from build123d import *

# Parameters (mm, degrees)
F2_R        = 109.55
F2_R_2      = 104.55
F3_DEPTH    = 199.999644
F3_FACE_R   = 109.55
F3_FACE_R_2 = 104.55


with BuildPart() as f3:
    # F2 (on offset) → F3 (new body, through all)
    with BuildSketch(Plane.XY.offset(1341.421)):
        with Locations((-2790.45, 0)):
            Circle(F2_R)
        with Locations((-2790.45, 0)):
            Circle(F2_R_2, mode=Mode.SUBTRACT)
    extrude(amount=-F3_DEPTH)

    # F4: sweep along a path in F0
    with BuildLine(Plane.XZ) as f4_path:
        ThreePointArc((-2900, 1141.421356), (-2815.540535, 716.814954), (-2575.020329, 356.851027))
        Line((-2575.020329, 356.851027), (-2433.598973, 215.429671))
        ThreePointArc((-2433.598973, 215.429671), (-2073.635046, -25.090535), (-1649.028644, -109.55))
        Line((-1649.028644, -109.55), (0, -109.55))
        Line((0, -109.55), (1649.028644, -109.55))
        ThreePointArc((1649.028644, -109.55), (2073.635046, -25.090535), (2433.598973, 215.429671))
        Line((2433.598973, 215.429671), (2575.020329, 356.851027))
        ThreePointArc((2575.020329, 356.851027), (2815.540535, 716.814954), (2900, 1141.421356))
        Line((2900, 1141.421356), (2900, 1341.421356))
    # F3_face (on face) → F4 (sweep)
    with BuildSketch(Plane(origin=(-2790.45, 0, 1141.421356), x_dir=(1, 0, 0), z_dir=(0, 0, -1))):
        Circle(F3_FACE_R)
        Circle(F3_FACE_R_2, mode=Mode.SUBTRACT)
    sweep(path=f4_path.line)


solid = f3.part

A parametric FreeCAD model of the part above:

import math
import FreeCAD as App
import Part
import Sketcher

V = App.Vector
Q = App.Units.Quantity

doc = App.newDocument("Part")
body = doc.addObject("PartDesign::Body", "Body")

sketch1 = doc.addObject("Sketcher::SketchObject", "Sketch")
body.addObject(sketch1)
sketch1.AttachmentSupport = (doc.XY_Plane, [""])
sketch1.MapMode = "FlatFace"
sketch1.AttachmentOffset = App.Placement(V(0, 0, 1341.421), App.Rotation())
sketch1.addGeometry(Part.Circle(V(-2790.45, 0, 0), V(0, 0, 1), 109.55), False)
sketch1.addGeometry(Part.Circle(V(-2790.45, 0, 0), V(0, 0, 1), 104.55), False)
sketch1.addConstraint(Sketcher.Constraint("Coincident", 1, 3, 0, 3))
sketch1.addConstraint(Sketcher.Constraint("PointOnObject", 0, 3, -1))
sketch1.addConstraint(Sketcher.Constraint("Diameter", 0, 219.1))
sketch1.addConstraint(Sketcher.Constraint("Diameter", 1, 209.1))
sketch1.addConstraint(Sketcher.Constraint("DistanceX", 0, 3, -1, 1, 2790.45))
pad1 = doc.addObject("PartDesign::Pad", "Pad")
body.addObject(pad1)
pad1.Profile = sketch1
pad1.Length = 199.999644
pad1.Reversed = True

sketch2 = doc.addObject("Sketcher::SketchObject", "Sketch001")
body.addObject(sketch2)
sketch2.AttachmentSupport = (doc.XY_Plane, [""])
sketch2.MapMode = "FlatFace"
sketch2.AttachmentOffset = App.Placement(V(0, 0, 1141.421356), App.Rotation())
sketch2.addGeometry(Part.Circle(V(-2790.45, 0, 0), V(0, 0, 1), 109.55), False)
sketch2.addGeometry(Part.Circle(V(-2790.45, 0, 0), V(0, 0, 1), 104.55), False)
sketch2.addConstraint(Sketcher.Constraint("Coincident", 1, 3, 0, 3))
sketch2.addConstraint(Sketcher.Constraint("PointOnObject", 0, 3, -1))
sketch2.addConstraint(Sketcher.Constraint("Diameter", 0, 219.1))
sketch2.addConstraint(Sketcher.Constraint("Diameter", 1, 209.1))
sketch2.addConstraint(Sketcher.Constraint("DistanceX", 0, 3, -1, 1, 2790.45))

sketch3 = doc.addObject("Sketcher::SketchObject", "Sketch002")
body.addObject(sketch3)
sketch3.AttachmentSupport = (doc.XZ_Plane, [""])
sketch3.MapMode = "FlatFace"
sketch3.addGeometry(Part.ArcOfCircle(Part.Circle(V(-1790.449996, 1141.421358, 0), V(0, 0, 1), 1109.550004), math.radians(-180), math.radians(-135)), False)
sketch3.addGeometry(Part.LineSegment(V(-2575.020329, 356.851027, 0), V(-2433.598973, 215.429671, 0)), False)
sketch3.addGeometry(Part.ArcOfCircle(Part.Circle(V(-1649.028642, 1000.000005, 0), V(0, 0, 1), 1109.550004), math.radians(-135), math.radians(-90)), False)
sketch3.addGeometry(Part.LineSegment(V(-1649.028644, -109.55, 0), V(1649.028644, -109.55, 0)), False)
sketch3.addGeometry(Part.ArcOfCircle(Part.Circle(V(1649.028642, 1000.000005, 0), V(0, 0, 1), 1109.550004), math.radians(-90), math.radians(-45)), False)
sketch3.addGeometry(Part.LineSegment(V(2433.598973, 215.429671, 0), V(2575.020329, 356.851027, 0)), False)
sketch3.addGeometry(Part.ArcOfCircle(Part.Circle(V(1790.449996, 1141.421358, 0), V(0, 0, 1), 1109.550004), math.radians(-45), math.radians(0)), False)
sketch3.addGeometry(Part.LineSegment(V(2900, 1141.421356, 0), V(2900, 1341.421356, 0)), False)
sketch3.addConstraint(Sketcher.Constraint("Tangent", 0, 2, 1, 1))
sketch3.addConstraint(Sketcher.Constraint("Coincident", 1, 2, 2, 1))
sketch3.addConstraint(Sketcher.Constraint("Coincident", 2, 2, 3, 1))
sketch3.addConstraint(Sketcher.Constraint("Coincident", 3, 2, 4, 1))
sketch3.addConstraint(Sketcher.Constraint("Tangent", 4, 2, 5, 1))
sketch3.addConstraint(Sketcher.Constraint("Coincident", 5, 2, 6, 1))
sketch3.addConstraint(Sketcher.Constraint("Tangent", 6, 2, 7, 1))
sketch3.addConstraint(Sketcher.Constraint("Horizontal", 3))
sketch3.addConstraint(Sketcher.Constraint("Vertical", 7))
sketch3.addConstraint(Sketcher.Constraint("Equal", 0, 2))
sketch3.addConstraint(Sketcher.Constraint("Equal", 2, 4))
sketch3.addConstraint(Sketcher.Constraint("Equal", 4, 6))
sketch3.addConstraint(Sketcher.Constraint("Symmetric", 0, 3, 6, 3, -2))
sketch3.addConstraint(Sketcher.Constraint("Perpendicular", 1, 5))
sketch3.addConstraint(Sketcher.Constraint("Horizontal", 6, 3, 0, 1))
sketch3.addConstraint(Sketcher.Constraint("Vertical", 4, 3, 3, 2))
sketch3.addConstraint(Sketcher.Constraint("Equal", 1, 5))
sketch3.addConstraint(Sketcher.Constraint("DistanceY", 7, 1, 7, 2, 200.0))
sketch3.addConstraint(Sketcher.Constraint("Angle", 1, Q("-45 deg")))
sketch3.addConstraint(Sketcher.Constraint("Distance", 1, 200.0))
sketch3.addConstraint(Sketcher.Constraint("DistanceX", 0, 1, -1, 1, 2900.0))
sketch3.addConstraint(Sketcher.Constraint("DistanceY", 2, 2, -1, 1, 109.55))
sketch3.addConstraint(Sketcher.Constraint("Radius", 0, 1109.550004))
sketch3.addConstraint(Sketcher.Constraint("DistanceX", 3, 1, 3, 2, 3298.057288))
sketch3.addConstraint(Sketcher.Constraint("DistanceY", -1, 1, 1, 2, 215.429671))
doc.recompute()

additivepipe = doc.addObject("PartDesign::AdditivePipe", "AdditivePipe")
body.addObject(additivepipe)
additivepipe.Profile = sketch2
additivepipe.Spine = (sketch3, ["Edge1", "Edge2", "Edge3", "Edge4", "Edge5", "Edge6", "Edge7", "Edge8"])

doc.recompute()
